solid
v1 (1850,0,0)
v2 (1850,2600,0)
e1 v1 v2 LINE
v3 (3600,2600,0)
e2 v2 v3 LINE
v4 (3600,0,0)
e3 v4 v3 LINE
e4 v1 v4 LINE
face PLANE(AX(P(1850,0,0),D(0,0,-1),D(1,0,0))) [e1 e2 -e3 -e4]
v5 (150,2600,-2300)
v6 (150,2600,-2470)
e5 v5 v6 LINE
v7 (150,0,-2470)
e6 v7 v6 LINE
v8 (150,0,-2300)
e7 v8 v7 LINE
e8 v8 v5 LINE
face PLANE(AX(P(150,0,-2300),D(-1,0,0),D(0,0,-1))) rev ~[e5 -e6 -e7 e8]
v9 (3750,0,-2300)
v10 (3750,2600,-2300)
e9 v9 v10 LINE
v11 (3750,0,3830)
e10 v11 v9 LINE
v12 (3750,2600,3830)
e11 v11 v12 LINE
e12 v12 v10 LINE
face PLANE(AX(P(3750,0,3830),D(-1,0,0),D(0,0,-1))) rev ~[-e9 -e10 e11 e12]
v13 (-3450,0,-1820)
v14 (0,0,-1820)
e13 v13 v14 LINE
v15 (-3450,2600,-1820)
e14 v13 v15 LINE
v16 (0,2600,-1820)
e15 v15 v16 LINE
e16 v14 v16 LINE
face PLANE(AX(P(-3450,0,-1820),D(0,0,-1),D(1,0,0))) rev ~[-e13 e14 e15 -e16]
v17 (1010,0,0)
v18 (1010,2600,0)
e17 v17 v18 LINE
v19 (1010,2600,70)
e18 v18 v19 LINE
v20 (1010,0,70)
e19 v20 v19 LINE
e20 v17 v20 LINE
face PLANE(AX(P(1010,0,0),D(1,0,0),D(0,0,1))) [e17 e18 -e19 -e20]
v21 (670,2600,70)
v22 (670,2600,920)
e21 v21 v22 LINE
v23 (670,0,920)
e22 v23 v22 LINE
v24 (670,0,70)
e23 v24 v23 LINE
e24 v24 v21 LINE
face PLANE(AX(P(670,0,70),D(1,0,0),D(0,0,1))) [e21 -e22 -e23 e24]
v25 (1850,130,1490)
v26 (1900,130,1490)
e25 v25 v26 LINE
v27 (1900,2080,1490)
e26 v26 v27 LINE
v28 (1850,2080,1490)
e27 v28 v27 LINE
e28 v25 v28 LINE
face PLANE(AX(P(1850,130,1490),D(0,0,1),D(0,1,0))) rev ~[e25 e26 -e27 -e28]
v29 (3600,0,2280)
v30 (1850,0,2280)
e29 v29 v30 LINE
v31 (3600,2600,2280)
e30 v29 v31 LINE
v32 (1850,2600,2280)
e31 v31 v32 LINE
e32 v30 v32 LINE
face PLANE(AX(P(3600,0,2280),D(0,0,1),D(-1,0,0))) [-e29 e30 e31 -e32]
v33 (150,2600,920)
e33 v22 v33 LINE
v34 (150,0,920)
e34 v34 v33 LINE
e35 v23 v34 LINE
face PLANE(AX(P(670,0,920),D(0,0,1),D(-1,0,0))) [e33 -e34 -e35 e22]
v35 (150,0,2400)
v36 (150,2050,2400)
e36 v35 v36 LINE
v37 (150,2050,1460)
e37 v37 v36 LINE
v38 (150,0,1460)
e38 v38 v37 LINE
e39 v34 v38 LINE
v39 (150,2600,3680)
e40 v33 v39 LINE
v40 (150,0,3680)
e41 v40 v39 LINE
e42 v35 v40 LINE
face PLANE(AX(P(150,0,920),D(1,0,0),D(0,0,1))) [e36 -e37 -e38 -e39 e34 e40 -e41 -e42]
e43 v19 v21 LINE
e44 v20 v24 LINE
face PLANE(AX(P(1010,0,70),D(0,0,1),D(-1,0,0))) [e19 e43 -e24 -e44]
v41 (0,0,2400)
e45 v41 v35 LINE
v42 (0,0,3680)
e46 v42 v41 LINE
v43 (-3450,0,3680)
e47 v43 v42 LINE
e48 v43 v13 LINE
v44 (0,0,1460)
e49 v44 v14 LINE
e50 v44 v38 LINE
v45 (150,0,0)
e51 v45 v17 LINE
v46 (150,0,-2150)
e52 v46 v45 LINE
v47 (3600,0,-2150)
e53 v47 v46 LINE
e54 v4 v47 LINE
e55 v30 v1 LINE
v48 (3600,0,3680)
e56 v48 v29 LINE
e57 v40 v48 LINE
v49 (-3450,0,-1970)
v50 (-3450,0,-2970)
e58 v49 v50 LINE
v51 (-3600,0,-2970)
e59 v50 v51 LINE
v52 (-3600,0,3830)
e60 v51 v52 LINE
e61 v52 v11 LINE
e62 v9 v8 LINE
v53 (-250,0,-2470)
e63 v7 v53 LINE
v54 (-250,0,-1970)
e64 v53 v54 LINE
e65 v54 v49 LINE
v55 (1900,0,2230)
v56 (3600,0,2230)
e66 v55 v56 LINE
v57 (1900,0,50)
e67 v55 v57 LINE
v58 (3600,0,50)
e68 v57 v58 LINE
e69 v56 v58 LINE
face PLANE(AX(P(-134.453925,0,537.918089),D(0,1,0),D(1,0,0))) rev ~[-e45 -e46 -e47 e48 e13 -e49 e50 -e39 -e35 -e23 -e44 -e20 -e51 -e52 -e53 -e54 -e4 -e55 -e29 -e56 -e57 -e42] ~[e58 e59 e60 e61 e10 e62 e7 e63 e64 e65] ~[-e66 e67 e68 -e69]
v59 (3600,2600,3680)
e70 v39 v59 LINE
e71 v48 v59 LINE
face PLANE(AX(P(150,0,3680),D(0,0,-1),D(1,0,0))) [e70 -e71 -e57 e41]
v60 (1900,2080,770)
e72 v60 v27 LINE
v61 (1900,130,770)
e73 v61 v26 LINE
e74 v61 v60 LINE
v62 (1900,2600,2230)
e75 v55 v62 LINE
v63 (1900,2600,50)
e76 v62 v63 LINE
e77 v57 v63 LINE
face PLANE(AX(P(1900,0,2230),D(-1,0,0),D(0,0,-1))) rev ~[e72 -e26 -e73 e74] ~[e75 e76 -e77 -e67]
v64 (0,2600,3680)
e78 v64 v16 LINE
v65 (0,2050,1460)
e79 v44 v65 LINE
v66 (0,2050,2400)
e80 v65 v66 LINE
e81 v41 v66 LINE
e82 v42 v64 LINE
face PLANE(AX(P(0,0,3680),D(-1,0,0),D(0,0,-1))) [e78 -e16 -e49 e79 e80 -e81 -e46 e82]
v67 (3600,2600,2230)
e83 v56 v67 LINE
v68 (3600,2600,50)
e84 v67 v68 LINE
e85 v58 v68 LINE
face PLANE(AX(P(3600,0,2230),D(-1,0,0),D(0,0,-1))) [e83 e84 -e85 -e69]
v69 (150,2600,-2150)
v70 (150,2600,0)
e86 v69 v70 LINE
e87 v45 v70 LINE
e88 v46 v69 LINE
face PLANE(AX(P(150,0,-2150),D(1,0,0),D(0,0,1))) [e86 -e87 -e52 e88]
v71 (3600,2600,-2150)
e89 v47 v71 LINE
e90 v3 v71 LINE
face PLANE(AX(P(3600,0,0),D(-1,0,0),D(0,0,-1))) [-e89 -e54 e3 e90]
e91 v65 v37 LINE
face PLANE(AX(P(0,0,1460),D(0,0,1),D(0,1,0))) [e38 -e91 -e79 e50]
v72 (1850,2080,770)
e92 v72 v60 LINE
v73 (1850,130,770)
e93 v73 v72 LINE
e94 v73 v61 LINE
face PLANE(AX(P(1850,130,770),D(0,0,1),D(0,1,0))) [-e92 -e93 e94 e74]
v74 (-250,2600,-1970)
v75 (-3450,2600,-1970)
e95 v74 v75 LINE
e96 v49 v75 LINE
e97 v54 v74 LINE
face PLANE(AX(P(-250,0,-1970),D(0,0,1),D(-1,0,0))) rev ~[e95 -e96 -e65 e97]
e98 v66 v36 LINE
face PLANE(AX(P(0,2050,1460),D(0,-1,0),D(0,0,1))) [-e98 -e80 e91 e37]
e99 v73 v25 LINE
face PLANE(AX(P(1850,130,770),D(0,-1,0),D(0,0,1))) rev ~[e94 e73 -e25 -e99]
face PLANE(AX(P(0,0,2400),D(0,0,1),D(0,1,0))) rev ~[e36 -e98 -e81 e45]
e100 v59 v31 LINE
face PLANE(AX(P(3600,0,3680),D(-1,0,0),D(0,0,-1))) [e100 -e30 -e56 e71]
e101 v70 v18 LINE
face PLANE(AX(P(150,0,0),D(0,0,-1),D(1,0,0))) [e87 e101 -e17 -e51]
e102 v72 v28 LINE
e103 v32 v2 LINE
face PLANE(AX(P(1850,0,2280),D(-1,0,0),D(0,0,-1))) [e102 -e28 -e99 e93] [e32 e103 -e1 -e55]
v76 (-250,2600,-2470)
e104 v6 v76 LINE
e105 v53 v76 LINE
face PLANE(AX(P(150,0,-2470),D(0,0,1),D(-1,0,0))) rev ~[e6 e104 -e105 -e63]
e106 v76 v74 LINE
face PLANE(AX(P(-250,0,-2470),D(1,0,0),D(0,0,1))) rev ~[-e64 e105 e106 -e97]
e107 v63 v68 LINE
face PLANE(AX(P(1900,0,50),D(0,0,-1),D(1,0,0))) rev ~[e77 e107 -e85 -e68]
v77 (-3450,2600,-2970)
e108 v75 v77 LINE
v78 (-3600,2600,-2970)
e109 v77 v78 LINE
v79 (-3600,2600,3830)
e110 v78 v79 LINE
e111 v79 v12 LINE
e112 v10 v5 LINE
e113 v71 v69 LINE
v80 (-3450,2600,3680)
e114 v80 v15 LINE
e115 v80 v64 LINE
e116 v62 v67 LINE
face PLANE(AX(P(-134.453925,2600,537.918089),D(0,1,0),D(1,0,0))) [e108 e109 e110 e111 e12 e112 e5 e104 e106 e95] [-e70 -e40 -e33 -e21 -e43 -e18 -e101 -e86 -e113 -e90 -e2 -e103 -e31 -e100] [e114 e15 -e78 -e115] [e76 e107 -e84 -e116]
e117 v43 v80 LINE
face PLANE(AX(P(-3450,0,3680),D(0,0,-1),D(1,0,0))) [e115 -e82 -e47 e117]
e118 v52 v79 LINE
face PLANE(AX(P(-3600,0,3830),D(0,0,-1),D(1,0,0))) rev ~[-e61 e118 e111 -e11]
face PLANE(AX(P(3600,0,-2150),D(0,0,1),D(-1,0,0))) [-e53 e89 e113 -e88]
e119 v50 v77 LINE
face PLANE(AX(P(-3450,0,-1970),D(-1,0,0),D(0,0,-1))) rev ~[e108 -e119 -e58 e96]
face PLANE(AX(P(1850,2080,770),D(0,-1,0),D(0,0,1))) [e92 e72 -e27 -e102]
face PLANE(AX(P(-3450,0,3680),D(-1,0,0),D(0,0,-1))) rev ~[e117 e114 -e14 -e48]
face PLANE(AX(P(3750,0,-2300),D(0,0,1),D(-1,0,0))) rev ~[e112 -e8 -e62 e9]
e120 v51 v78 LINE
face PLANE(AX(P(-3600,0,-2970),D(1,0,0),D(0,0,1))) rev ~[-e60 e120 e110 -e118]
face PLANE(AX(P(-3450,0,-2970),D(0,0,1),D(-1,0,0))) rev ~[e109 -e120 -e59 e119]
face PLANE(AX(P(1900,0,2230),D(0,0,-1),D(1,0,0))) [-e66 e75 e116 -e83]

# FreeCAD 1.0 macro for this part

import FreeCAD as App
import Part
import Sketcher

V = App.Vector


def add_polygon(sketch, points):
    """Adds a closed chain of lines whose ends are joined by coincident constraints."""
    first, n = sketch.GeometryCount, len(points)
    for a, b in zip(points, points[1:] + points[:1]):
        sketch.addGeometry(Part.LineSegment(App.Vector(*a, 0), App.Vector(*b, 0)), False)
    for i in range(n):
        sketch.addConstraint(Sketcher.Constraint("Coincident", first + i, 2, first + (i + 1) % n, 1))

doc = App.newDocument("Part")
body = doc.addObject("PartDesign::Body", "Body")

sketch1 = body.newObject("Sketcher::SketchObject", "Sketch")
sketch1.AttachmentSupport = (doc.getObject("XZ_Plane"), [""])
sketch1.MapMode = "FlatFace"
add_polygon(sketch1, [(-3600, -2970), (-3600, 3830), (3750, 3830), (3750, -2300), (150, -2300), (150, -2470), (-250, -2470), (-250, -1970), (-3450, -1970), (-3450, -2970)])
add_polygon(sketch1, [(0, 3680), (-3450, 3680), (-3450, -1820), (0, -1820)])
add_polygon(sketch1, [(150, 0), (150, -2150), (3600, -2150), (3600, 0), (1850, 0), (1850, 2280), (3600, 2280), (3600, 3680), (150, 3680), (150, 920), (670, 920), (670, 70), (1010, 70), (1010, 0)])
add_polygon(sketch1, [(3600, 2230), (1900, 2230), (1900, 50), (3600, 50)])
sketch1.addConstraint([
    Sketcher.Constraint("Vertical", 0),
    Sketcher.Constraint("Horizontal", 1),
    Sketcher.Constraint("Vertical", 2),
    Sketcher.Constraint("Horizontal", 3),
    Sketcher.Constraint("Vertical", 4),
    Sketcher.Constraint("Horizontal", 5),
    Sketcher.Constraint("Vertical", 6),
    Sketcher.Constraint("Horizontal", 7),
    Sketcher.Constraint("Vertical", 8),
    Sketcher.Constraint("Horizontal", 9),
    Sketcher.Constraint("Horizontal", 10),
    Sketcher.Constraint("Vertical", 11),
    Sketcher.Constraint("Horizontal", 12),
    Sketcher.Constraint("Vertical", 13),
    Sketcher.Constraint("Vertical", 14),
    Sketcher.Constraint("Horizontal", 15),
    Sketcher.Constraint("Vertical", 16),
    Sketcher.Constraint("Horizontal", 17),
    Sketcher.Constraint("Vertical", 18),
    Sketcher.Constraint("Horizontal", 19),
    Sketcher.Constraint("Vertical", 20),
    Sketcher.Constraint("Horizontal", 21),
    Sketcher.Constraint("Vertical", 22),
    Sketcher.Constraint("Horizontal", 23),
    Sketcher.Constraint("Vertical", 24),
    Sketcher.Constraint("Horizontal", 25),
    Sketcher.Constraint("Vertical", 26),
    Sketcher.Constraint("Horizontal", 27),
    Sketcher.Constraint("Horizontal", 28),
    Sketcher.Constraint("Vertical", 29),
    Sketcher.Constraint("Horizontal", 30),
    Sketcher.Constraint("Vertical", 31),
    Sketcher.Constraint("PointOnObject", 12, 2, -2),
    Sketcher.Constraint("PointOnObject", 16, 2, -1),
    Sketcher.Constraint("PointOnObject", 26, 2, -1),
    Sketcher.Constraint("Horizontal", 13, 2, 20, 2),
    Sketcher.Constraint("Vertical", 8, 2, 10, 2),
    Sketcher.Constraint("Vertical", 4, 2, 14, 2),
    Sketcher.Constraint("Vertical", 16, 2, 19, 2),
    Sketcher.Constraint("Vertical", 14, 2, 21, 2),
    Sketcher.Constraint("Vertical", 20, 2, 30, 2),
    Sketcher.Constraint("Equal", 12, 15),
    Sketcher.Constraint("DistanceX", 1, 1, 1, 2, 7350.0),
    Sketcher.Constraint("DistanceX", 3, 2, 3, 1, 3600.0),
    Sketcher.Constraint("DistanceX", 5, 2, 5, 1, 400.0),
    Sketcher.Constraint("DistanceX", 7, 2, 7, 1, 3200.0),
    Sketcher.Constraint("DistanceX", 10, 2, 10, 1, 3450.0),
    Sketcher.Constraint("DistanceX", 17, 2, 17, 1, 1750.0),
    Sketcher.Constraint("DistanceX", 23, 1, 23, 2, 520.0),
    Sketcher.Constraint("DistanceX", 25, 1, 25, 2, 340.0),
    Sketcher.Constraint("DistanceX", 28, 2, 28, 1, 1700.0),
    Sketcher.Constraint("DistanceY", 0, 1, 0, 2, 6800.0),
    Sketcher.Constraint("DistanceY", 2, 2, 2, 1, 6130.0),
    Sketcher.Constraint("DistanceY", 4, 2, 4, 1, 170.0),
    Sketcher.Constraint("DistanceY", 6, 1, 6, 2, 500.0),
    Sketcher.Constraint("DistanceY", 11, 2, 11, 1, 5500.0),
    Sketcher.Constraint("DistanceY", 14, 2, 14, 1, 2150.0),
    Sketcher.Constraint("DistanceY", 18, 1, 18, 2, 2280.0),
    Sketcher.Constraint("DistanceY", 20, 1, 20, 2, 1400.0),
    Sketcher.Constraint("DistanceY", 22, 2, 22, 1, 2760.0),
    Sketcher.Constraint("DistanceY", 24, 2, 24, 1, 850.0),
    Sketcher.Constraint("DistanceY", 29, 2, 29, 1, 2180.0),
    Sketcher.Constraint("DistanceY", -1, 1, 0, 2, 3830.0),
    Sketcher.Constraint("DistanceY", -1, 1, 28, 2, 2230.0),
])
pad1 = body.newObject("PartDesign::Pad", "Pad")
pad1.Profile = sketch1
pad1.Length = 2600
pad1.Reversed = True

sketch2 = body.newObject("Sketcher::SketchObject", "Sketch001")
sketch2.AttachmentSupport = (doc.getObject("YZ_Plane"), [""])
sketch2.MapMode = "FlatFace"
add_polygon(sketch2, [(2050, 1460), (0, 1460), (0, 2400), (2050, 2400)])
sketch2.addConstraint([
    Sketcher.Constraint("Horizontal", 0),
    Sketcher.Constraint("Vertical", 1),
    Sketcher.Constraint("Horizontal", 2),
    Sketcher.Constraint("Vertical", 3),
    Sketcher.Constraint("PointOnObject", 0, 2, -2),
    Sketcher.Constraint("DistanceX", 0, 2, 0, 1, 2050.0),
    Sketcher.Constraint("DistanceY", 1, 1, 1, 2, 940.0),
    Sketcher.Constraint("DistanceY", -1, 1, 0, 2, 1460.0),
])
pocket1 = body.newObject("PartDesign::Pocket", "Pocket")
pocket1.Profile = sketch2
pocket1.Length = 150
pocket1.Reversed = True

sketch3 = body.newObject("Sketcher::SketchObject", "Sketch002")
sketch3.AttachmentSupport = (doc.getObject("YZ_Plane"), [""])
sketch3.MapMode = "FlatFace"
sketch3.AttachmentOffset = App.Placement(V(0, 0, 1850), App.Rotation())
add_polygon(sketch3, [(2080, 770), (130, 770), (130, 1490), (2080, 1490)])
sketch3.addConstraint([
    Sketcher.Constraint("Horizontal", 0),
    Sketcher.Constraint("Vertical", 1),
    Sketcher.Constraint("Horizontal", 2),
    Sketcher.Constraint("Vertical", 3),
    Sketcher.Constraint("DistanceX", 0, 2, 0, 1, 1950.0),
    Sketcher.Constraint("DistanceY", 1, 1, 1, 2, 720.0),
    Sketcher.Constraint("DistanceX", -1, 1, 0, 2, 130.0),
    Sketcher.Constraint("DistanceY", -1, 1, 0, 2, 770.0),
])
pocket2 = body.newObject("PartDesign::Pocket", "Pocket001")
pocket2.Profile = sketch3
pocket2.Length = 50
pocket2.Reversed = True

doc.recompute()
